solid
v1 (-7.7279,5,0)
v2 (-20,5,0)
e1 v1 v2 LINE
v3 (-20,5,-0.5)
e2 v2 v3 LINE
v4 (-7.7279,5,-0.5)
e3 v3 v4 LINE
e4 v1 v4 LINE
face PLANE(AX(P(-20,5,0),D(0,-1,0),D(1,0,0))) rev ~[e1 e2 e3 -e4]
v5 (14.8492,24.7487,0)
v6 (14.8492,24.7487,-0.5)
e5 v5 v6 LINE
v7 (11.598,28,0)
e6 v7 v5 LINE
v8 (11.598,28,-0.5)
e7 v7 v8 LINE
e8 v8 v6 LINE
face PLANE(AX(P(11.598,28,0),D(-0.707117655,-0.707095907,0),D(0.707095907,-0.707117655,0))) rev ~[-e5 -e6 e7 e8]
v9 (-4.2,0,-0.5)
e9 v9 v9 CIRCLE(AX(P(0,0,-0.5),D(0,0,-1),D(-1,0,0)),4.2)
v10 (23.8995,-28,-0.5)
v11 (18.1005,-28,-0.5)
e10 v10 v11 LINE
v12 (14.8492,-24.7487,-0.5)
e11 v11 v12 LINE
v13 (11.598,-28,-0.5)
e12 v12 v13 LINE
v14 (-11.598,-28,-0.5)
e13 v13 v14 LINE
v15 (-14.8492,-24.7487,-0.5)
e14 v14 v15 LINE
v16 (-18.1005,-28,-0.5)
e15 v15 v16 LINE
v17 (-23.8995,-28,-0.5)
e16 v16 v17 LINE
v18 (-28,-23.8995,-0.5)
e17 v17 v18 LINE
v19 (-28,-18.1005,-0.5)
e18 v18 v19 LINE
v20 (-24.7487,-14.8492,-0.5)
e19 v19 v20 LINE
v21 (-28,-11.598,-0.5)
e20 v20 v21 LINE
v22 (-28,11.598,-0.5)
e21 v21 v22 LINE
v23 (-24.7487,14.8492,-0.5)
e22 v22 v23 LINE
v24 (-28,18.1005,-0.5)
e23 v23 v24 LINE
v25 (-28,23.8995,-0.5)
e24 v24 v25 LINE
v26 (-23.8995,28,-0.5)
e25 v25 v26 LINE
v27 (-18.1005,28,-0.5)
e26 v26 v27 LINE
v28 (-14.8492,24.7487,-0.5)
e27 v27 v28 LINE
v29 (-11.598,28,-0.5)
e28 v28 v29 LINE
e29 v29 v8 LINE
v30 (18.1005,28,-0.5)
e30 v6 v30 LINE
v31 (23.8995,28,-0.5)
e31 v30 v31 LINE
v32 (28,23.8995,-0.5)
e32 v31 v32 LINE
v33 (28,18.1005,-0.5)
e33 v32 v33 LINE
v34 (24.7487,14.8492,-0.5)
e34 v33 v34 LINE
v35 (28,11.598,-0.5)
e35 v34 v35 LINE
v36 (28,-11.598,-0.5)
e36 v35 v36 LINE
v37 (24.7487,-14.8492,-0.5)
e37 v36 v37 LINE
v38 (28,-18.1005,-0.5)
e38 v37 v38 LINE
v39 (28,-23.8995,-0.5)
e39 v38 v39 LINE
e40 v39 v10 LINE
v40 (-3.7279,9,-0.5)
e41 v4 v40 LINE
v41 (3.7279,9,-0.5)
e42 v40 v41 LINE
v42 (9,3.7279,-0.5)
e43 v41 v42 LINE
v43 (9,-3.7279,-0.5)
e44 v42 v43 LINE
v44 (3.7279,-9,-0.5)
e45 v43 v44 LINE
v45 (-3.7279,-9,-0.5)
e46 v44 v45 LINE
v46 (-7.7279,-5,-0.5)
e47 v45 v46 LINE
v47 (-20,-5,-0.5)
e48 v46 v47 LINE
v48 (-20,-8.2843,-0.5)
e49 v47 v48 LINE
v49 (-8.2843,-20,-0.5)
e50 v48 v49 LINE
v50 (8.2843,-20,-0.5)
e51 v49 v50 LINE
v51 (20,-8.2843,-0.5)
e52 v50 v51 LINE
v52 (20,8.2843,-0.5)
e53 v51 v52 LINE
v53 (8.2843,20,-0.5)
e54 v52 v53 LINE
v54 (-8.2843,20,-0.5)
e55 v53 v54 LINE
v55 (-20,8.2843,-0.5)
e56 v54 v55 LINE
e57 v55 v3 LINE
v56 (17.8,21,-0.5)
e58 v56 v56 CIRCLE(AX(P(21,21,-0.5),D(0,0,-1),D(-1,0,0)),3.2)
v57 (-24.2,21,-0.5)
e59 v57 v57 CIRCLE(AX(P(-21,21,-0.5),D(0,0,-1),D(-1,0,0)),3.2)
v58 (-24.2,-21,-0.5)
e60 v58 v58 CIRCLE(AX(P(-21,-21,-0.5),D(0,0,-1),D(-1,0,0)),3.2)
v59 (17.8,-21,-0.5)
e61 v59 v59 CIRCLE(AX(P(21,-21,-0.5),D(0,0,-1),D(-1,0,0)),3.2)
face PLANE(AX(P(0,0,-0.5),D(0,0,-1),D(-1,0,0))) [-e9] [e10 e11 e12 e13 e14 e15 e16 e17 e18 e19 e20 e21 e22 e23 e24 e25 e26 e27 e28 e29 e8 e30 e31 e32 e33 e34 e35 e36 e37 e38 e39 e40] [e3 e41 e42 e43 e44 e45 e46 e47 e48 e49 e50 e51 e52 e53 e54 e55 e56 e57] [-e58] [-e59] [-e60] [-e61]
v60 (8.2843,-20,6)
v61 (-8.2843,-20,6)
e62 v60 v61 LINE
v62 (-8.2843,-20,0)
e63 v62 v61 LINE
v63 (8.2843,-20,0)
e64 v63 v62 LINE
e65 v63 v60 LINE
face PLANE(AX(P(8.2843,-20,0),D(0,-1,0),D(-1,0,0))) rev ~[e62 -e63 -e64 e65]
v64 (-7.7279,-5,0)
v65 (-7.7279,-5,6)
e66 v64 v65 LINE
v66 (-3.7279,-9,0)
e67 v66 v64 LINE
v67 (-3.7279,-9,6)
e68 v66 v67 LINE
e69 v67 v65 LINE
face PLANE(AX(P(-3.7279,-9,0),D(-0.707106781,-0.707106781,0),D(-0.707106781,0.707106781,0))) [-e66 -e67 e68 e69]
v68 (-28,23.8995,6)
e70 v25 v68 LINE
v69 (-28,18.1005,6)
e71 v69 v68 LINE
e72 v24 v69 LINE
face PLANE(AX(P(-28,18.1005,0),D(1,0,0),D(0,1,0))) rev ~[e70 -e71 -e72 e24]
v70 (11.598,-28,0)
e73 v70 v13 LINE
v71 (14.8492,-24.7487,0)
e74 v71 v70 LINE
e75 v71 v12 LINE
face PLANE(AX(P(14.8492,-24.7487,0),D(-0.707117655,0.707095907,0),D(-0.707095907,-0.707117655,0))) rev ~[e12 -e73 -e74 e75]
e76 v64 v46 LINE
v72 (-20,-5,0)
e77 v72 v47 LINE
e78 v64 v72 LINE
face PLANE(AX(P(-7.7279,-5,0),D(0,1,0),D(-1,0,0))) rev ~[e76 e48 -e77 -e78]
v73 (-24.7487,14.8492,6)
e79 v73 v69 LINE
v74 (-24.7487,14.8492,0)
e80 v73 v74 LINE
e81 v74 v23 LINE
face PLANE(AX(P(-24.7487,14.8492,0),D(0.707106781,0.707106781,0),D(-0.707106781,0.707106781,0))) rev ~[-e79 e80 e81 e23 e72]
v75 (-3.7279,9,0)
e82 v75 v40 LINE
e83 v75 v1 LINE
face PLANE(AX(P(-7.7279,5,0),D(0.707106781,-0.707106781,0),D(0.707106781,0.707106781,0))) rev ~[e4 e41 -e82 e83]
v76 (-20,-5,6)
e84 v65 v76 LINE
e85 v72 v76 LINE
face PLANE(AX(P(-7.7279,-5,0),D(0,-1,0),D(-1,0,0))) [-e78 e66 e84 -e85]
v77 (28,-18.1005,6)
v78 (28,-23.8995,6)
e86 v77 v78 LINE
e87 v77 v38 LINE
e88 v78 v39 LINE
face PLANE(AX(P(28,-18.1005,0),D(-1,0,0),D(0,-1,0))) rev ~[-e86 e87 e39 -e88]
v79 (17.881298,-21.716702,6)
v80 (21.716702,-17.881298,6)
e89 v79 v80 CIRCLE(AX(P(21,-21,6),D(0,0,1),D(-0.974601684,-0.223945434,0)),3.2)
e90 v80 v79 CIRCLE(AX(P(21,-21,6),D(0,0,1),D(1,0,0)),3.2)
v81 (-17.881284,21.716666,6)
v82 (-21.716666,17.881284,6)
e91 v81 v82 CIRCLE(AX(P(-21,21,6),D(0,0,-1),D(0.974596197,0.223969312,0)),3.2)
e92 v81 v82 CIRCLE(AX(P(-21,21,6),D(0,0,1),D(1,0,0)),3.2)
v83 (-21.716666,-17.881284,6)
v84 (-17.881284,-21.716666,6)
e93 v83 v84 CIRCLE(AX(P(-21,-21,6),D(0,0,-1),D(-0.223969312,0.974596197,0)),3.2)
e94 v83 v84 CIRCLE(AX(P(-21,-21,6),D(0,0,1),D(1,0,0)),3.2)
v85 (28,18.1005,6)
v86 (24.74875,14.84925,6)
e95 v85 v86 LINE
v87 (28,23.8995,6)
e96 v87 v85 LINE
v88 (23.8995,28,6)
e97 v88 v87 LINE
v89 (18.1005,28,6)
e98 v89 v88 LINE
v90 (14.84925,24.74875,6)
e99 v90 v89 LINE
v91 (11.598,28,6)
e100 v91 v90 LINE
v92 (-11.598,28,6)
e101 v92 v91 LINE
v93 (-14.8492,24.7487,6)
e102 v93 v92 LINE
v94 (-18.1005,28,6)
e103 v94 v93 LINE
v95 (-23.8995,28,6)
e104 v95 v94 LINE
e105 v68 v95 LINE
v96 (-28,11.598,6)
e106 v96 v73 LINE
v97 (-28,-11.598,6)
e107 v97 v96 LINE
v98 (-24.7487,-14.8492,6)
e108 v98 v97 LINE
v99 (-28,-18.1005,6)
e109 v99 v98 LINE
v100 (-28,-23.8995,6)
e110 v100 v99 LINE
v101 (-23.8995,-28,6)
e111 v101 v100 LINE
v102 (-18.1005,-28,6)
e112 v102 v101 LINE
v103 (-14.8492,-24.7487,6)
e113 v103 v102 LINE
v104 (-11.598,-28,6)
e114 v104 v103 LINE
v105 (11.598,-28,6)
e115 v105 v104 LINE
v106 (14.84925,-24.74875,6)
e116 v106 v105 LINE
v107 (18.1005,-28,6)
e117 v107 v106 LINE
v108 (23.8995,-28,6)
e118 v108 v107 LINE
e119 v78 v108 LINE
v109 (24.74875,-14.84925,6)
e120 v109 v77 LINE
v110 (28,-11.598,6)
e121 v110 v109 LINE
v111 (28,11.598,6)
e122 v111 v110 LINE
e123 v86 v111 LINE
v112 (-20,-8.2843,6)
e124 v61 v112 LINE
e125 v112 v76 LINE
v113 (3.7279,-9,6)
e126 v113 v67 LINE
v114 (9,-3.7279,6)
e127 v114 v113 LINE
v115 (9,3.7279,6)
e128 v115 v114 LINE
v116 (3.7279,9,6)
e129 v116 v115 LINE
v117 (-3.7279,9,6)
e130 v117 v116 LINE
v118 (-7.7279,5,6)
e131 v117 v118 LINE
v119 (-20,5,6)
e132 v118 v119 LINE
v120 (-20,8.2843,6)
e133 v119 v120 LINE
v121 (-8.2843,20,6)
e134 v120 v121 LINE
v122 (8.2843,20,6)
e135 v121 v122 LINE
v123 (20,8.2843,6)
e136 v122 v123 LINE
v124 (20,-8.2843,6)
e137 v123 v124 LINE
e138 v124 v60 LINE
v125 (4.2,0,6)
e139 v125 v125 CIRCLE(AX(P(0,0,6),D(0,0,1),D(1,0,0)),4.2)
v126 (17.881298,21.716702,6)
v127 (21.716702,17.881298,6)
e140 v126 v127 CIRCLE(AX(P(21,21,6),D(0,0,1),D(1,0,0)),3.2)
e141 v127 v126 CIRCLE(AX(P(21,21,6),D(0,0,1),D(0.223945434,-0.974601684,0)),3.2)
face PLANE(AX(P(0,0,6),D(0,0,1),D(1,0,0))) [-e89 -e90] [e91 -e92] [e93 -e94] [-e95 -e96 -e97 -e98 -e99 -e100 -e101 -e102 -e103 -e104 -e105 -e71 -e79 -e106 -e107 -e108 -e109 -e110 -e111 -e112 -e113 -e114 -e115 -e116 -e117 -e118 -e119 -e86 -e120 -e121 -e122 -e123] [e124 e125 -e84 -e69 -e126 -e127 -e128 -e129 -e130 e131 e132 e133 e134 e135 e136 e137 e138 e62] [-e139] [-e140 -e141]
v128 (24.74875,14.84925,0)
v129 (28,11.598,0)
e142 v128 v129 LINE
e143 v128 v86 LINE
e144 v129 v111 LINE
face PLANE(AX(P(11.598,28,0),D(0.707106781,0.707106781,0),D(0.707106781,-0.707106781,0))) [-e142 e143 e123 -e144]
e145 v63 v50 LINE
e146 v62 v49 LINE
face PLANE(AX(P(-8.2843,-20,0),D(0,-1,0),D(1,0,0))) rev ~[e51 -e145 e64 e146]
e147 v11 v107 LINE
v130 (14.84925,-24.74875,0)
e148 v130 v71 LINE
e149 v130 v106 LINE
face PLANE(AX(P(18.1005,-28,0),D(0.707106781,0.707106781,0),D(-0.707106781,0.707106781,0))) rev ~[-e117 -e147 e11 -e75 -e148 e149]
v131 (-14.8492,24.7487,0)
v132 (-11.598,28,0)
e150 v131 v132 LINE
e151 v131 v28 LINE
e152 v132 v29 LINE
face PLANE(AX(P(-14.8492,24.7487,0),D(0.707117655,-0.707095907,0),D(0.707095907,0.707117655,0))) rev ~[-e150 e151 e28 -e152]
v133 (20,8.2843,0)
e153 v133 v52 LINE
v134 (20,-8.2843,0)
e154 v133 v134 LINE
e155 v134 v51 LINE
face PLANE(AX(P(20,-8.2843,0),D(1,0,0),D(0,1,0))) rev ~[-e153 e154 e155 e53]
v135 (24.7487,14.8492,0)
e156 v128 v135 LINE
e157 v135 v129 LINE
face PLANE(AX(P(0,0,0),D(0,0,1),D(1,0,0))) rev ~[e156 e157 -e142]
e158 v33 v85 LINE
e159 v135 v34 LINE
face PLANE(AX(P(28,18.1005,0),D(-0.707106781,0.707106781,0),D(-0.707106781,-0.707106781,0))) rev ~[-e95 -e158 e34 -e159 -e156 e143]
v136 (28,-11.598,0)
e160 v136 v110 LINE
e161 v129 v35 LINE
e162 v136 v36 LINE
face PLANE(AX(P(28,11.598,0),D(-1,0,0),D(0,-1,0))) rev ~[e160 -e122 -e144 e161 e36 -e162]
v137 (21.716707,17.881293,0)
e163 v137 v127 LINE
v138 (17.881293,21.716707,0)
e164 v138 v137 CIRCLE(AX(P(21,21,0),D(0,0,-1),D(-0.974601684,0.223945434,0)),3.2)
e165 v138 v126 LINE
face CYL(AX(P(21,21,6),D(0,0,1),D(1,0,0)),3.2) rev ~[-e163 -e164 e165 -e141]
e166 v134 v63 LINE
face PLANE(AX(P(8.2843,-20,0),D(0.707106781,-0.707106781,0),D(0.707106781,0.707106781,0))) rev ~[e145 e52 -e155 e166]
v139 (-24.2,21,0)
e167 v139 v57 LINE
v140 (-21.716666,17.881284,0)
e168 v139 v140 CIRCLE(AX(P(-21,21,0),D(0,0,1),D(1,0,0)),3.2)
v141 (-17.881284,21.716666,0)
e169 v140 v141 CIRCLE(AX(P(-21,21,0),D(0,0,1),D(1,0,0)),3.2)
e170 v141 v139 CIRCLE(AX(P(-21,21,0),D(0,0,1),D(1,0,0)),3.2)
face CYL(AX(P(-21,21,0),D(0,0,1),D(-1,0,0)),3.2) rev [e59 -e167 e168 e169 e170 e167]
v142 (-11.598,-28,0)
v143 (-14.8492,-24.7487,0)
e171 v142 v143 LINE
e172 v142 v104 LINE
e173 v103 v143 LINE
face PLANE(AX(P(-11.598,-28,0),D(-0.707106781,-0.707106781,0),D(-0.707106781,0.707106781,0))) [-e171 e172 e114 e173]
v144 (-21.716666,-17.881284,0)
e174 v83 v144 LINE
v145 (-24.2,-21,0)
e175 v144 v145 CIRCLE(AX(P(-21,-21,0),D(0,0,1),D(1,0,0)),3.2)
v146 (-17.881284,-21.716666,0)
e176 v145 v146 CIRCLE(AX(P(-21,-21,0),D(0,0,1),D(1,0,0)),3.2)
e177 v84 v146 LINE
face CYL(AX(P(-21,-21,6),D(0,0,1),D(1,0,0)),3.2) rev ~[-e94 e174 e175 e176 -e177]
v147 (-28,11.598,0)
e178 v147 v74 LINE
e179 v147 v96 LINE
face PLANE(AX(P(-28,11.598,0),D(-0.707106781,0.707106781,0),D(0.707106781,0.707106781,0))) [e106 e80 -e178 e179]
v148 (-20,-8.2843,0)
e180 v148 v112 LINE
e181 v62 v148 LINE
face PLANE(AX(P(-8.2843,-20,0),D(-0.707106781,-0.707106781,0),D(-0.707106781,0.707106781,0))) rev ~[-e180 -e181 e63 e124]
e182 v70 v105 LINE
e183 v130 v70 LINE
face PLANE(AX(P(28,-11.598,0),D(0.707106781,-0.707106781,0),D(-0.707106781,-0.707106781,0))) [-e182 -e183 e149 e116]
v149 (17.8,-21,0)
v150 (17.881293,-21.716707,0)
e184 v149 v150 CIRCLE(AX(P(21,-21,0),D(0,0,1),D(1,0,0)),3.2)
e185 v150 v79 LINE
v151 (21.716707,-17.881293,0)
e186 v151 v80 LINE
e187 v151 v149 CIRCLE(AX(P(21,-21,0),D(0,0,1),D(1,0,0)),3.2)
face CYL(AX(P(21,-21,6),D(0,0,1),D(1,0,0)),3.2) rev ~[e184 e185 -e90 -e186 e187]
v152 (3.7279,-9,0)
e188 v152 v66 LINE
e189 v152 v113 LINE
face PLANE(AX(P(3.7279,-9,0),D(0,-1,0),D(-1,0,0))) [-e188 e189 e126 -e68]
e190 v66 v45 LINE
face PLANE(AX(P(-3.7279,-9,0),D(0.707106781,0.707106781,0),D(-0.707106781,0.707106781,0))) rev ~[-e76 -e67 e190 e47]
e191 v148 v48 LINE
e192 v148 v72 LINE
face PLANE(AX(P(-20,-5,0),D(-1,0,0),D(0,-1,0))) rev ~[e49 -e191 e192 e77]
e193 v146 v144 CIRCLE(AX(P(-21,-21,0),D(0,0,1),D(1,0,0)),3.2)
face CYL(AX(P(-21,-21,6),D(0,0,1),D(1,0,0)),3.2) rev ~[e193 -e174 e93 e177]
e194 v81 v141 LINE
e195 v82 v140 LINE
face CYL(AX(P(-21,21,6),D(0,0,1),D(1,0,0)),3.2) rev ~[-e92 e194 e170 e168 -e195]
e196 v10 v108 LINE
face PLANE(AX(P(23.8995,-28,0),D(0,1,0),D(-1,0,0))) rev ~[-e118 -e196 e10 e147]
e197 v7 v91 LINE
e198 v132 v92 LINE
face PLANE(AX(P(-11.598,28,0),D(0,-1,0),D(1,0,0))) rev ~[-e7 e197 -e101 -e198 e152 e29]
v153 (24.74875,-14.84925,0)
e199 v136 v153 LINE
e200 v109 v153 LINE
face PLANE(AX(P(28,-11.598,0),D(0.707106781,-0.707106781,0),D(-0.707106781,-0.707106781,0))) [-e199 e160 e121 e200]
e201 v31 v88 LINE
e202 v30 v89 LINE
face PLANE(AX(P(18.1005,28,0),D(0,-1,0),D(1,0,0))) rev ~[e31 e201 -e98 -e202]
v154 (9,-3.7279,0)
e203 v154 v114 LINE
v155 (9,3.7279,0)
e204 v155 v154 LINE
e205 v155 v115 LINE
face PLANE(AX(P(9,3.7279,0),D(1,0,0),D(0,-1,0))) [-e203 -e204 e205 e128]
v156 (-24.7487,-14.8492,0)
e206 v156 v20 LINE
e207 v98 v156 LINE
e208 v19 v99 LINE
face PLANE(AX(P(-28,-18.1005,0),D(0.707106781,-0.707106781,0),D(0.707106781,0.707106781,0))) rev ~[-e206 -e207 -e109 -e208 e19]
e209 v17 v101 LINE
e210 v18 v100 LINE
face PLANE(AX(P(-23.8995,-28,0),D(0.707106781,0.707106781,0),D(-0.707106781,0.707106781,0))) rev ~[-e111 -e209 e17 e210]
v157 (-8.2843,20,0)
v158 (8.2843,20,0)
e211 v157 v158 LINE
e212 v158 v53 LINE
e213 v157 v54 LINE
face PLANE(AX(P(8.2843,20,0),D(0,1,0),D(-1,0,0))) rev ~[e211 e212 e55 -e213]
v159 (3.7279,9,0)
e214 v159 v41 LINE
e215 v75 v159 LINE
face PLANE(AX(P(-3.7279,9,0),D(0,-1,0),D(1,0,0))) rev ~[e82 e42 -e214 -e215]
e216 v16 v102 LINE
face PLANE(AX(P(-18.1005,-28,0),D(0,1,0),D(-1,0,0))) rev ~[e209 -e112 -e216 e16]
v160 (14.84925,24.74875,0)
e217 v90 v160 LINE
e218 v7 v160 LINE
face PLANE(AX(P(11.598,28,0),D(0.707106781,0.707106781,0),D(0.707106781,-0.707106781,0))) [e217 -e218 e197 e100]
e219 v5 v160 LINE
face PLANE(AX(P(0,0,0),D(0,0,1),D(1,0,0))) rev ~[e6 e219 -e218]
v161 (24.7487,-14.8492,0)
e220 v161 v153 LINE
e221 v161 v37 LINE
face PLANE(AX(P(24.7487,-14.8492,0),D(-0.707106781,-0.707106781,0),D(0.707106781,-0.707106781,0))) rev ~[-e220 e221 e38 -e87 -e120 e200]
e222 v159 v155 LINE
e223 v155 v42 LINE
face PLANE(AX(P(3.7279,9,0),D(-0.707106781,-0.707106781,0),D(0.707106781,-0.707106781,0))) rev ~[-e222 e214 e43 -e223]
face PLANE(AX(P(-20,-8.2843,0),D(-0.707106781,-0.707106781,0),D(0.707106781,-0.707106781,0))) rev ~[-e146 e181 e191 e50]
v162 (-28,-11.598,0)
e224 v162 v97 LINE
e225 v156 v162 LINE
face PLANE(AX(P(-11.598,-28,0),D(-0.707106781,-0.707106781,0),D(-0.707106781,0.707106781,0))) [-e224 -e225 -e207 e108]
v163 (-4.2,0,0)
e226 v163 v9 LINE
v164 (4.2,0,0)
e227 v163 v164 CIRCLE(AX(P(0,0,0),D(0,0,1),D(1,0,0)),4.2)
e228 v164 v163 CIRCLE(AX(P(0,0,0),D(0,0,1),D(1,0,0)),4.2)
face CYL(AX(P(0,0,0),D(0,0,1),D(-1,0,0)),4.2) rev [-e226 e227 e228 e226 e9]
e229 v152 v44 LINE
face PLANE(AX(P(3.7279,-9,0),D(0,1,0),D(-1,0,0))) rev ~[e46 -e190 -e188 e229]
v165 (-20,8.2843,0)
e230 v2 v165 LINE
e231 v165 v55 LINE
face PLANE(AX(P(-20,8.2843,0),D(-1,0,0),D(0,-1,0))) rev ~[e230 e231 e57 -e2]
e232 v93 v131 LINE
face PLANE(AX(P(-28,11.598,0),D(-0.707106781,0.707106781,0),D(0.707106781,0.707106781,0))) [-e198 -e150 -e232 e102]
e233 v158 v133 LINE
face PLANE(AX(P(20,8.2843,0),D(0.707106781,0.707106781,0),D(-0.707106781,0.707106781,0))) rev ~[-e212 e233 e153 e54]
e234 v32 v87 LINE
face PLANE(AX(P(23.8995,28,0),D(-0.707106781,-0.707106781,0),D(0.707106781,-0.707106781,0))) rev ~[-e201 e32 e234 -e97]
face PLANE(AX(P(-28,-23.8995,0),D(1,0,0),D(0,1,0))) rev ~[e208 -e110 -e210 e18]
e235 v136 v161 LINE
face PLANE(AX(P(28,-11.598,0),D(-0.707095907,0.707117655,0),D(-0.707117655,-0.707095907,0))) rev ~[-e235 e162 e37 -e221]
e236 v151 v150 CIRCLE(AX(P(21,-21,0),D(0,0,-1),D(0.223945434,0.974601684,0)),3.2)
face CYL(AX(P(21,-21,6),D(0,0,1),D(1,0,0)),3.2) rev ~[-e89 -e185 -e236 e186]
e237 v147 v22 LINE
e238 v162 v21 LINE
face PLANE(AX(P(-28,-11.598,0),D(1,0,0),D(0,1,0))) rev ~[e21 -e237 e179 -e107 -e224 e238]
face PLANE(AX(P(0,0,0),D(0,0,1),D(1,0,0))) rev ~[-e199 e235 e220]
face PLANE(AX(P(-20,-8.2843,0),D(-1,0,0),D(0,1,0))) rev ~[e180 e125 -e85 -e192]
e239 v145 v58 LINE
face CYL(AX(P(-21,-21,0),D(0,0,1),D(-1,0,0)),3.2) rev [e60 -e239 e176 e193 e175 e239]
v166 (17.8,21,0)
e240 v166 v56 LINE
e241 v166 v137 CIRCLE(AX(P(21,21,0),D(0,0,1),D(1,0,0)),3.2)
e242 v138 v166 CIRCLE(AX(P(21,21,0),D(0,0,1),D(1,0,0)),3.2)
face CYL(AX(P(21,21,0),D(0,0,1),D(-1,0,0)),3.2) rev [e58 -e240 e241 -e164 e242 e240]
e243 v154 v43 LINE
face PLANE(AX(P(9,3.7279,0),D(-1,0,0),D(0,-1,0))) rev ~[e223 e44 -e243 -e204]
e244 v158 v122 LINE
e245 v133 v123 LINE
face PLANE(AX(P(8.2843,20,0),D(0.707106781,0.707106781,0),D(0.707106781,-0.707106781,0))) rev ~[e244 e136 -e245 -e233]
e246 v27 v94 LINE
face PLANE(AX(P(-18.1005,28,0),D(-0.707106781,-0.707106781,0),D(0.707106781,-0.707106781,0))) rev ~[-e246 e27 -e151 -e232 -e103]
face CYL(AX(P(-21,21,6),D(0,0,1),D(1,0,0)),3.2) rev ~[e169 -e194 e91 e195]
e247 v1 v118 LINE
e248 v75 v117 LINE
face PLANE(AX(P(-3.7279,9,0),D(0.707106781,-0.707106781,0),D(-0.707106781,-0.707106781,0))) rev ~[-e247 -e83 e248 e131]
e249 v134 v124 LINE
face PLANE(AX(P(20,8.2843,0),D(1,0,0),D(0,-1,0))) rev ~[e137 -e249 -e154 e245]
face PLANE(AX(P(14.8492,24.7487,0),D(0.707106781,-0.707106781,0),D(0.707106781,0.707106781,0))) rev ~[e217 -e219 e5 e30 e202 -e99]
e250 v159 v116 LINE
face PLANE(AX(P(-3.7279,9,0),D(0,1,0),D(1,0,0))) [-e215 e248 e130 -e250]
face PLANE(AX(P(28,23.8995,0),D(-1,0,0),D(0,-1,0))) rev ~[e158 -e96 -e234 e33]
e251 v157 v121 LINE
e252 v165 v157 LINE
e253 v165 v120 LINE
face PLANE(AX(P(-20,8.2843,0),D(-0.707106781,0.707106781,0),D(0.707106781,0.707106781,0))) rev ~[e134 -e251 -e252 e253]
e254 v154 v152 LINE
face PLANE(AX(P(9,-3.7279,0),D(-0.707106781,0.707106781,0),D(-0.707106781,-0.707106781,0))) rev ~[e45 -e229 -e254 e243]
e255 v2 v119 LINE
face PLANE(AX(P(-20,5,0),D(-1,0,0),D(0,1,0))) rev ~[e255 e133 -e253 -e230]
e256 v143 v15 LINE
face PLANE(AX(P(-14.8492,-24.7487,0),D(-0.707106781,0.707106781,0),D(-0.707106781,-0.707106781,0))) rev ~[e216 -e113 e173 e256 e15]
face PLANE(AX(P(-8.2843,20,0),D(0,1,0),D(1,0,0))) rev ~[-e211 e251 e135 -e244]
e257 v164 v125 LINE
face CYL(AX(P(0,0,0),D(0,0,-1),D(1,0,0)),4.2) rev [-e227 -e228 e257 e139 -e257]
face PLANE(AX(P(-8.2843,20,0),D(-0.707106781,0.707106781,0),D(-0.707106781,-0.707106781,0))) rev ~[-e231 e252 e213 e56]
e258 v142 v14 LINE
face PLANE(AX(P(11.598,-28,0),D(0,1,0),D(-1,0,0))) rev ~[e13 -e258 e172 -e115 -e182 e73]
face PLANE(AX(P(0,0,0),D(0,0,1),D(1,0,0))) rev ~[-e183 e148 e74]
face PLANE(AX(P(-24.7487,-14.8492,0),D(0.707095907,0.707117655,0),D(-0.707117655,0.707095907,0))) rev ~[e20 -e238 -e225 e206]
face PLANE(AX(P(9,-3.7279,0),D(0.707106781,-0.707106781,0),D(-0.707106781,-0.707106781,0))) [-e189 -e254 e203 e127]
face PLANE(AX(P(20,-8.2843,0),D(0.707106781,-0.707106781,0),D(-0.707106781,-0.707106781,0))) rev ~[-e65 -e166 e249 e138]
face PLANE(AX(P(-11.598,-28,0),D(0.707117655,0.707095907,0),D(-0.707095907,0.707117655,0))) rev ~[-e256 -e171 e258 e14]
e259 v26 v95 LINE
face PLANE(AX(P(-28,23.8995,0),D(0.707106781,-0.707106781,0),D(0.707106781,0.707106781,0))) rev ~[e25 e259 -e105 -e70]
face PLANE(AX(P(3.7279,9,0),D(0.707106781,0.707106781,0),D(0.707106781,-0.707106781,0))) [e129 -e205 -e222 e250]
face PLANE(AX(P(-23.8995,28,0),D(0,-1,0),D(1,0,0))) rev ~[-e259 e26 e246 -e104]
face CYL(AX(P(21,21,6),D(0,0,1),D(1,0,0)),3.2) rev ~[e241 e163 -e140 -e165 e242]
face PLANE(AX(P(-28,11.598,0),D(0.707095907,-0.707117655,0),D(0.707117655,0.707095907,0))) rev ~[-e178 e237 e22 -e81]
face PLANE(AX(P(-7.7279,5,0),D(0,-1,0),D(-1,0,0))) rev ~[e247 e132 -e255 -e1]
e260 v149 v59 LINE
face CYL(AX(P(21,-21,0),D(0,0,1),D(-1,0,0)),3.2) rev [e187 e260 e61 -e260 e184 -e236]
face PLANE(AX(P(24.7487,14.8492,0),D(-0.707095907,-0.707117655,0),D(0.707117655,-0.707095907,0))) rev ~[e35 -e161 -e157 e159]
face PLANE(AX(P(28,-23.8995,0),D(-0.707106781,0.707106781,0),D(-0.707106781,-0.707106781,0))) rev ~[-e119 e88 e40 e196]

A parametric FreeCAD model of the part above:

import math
import FreeCAD as App
import Part
import Sketcher
from FreeCAD import Vector

doc = App.newDocument("Part")
body = doc.addObject("PartDesign::Body", "Body")

# Sketch on XY plane
sketch1 = doc.addObject("Sketcher::SketchObject", "Sketch")
body.addObject(sketch1)
sketch1.AttachmentSupport = (doc.XY_Plane, [""])
sketch1.MapMode = "FlatFace"
sketch1.addGeometry([
    Part.LineSegment(Vector(11.6, -28, 0), Vector(28, -11.6, 0)),  # 0
    Part.LineSegment(Vector(28, -11.6, 0), Vector(28, 11.6, 0)),  # 1
    Part.LineSegment(Vector(28, 11.6, 0), Vector(11.6, 28, 0)),  # 2
    Part.LineSegment(Vector(11.6, 28, 0), Vector(-11.6, 28, 0)),  # 3
    Part.LineSegment(Vector(-11.6, 28, 0), Vector(-28, 11.6, 0)),  # 4
    Part.LineSegment(Vector(-28, 11.6, 0), Vector(-28, -11.6, 0)),  # 5
    Part.LineSegment(Vector(-28, -11.6, 0), Vector(-11.6, -28, 0)),  # 6
    Part.LineSegment(Vector(-11.6, -28, 0), Vector(11.6, -28, 0)),  # 7
    Part.LineSegment(Vector(20, 8.3, 0), Vector(20, -8.3, 0)),  # 8
    Part.LineSegment(Vector(20, -8.3, 0), Vector(8.3, -20, 0)),  # 9
    Part.LineSegment(Vector(8.3, -20, 0), Vector(-8.3, -20, 0)),  # 10
    Part.LineSegment(Vector(-8.3, -20, 0), Vector(-20, -8.3, 0)),  # 11
    Part.LineSegment(Vector(-20, -8.3, 0), Vector(-20, -5, 0)),  # 12
    Part.LineSegment(Vector(-20, -5, 0), Vector(-7.7, -5, 0)),  # 13
    Part.LineSegment(Vector(-7.7, -5, 0), Vector(-3.7, -9, 0)),  # 14
    Part.LineSegment(Vector(-3.7, -9, 0), Vector(3.7, -9, 0)),  # 15
    Part.LineSegment(Vector(3.7, -9, 0), Vector(9, -3.7, 0)),  # 16
    Part.LineSegment(Vector(9, -3.7, 0), Vector(9, 3.7, 0)),  # 17
    Part.LineSegment(Vector(9, 3.7, 0), Vector(3.7, 9, 0)),  # 18
    Part.LineSegment(Vector(3.7, 9, 0), Vector(-3.7, 9, 0)),  # 19
    Part.LineSegment(Vector(-3.7, 9, 0), Vector(-7.7, 5, 0)),  # 20
    Part.LineSegment(Vector(-7.7, 5, 0), Vector(-20, 5, 0)),  # 21
    Part.LineSegment(Vector(-20, 5, 0), Vector(-20, 8.3, 0)),  # 22
    Part.LineSegment(Vector(-20, 8.3, 0), Vector(-8.3, 20, 0)),  # 23
    Part.LineSegment(Vector(-8.3, 20, 0), Vector(8.3, 20, 0)),  # 24
    Part.LineSegment(Vector(8.3, 20, 0), Vector(20, 8.3, 0)),  # 25
    Part.Circle(Vector(0, 0, 0), Vector(0, 0, 1), 4.2),  # 26
], False)
sketch1.addConstraint([
    Sketcher.Constraint("Coincident", 0, 2, 1, 1),
    Sketcher.Constraint("Coincident", 1, 2, 2, 1),
    Sketcher.Constraint("Coincident", 2, 2, 3, 1),
    Sketcher.Constraint("Coincident", 3, 2, 4, 1),
    Sketcher.Constraint("Coincident", 4, 2, 5, 1),
    Sketcher.Constraint("Coincident", 5, 2, 6, 1),
    Sketcher.Constraint("Coincident", 6, 2, 7, 1),
    Sketcher.Constraint("Coincident", 7, 2, 0, 1),
    Sketcher.Constraint("Coincident", 8, 2, 9, 1),
    Sketcher.Constraint("Coincident", 9, 2, 10, 1),
    Sketcher.Constraint("Coincident", 10, 2, 11, 1),
    Sketcher.Constraint("Coincident", 11, 2, 12, 1),
    Sketcher.Constraint("Coincident", 12, 2, 13, 1),
    Sketcher.Constraint("Coincident", 13, 2, 14, 1),
    Sketcher.Constraint("Coincident", 14, 2, 15, 1),
    Sketcher.Constraint("Coincident", 15, 2, 16, 1),
    Sketcher.Constraint("Coincident", 16, 2, 17, 1),
    Sketcher.Constraint("Coincident", 17, 2, 18, 1),
    Sketcher.Constraint("Coincident", 18, 2, 19, 1),
    Sketcher.Constraint("Coincident", 19, 2, 20, 1),
    Sketcher.Constraint("Coincident", 20, 2, 21, 1),
    Sketcher.Constraint("Coincident", 21, 2, 22, 1),
    Sketcher.Constraint("Coincident", 22, 2, 23, 1),
    Sketcher.Constraint("Coincident", 23, 2, 24, 1),
    Sketcher.Constraint("Coincident", 24, 2, 25, 1),
    Sketcher.Constraint("Coincident", 25, 2, 8, 1),
    Sketcher.Constraint("Vertical", 1),
    Sketcher.Constraint("Horizontal", 3),
    Sketcher.Constraint("Vertical", 5),
    Sketcher.Constraint("Horizontal", 7),
    Sketcher.Constraint("Vertical", 8),
    Sketcher.Constraint("Horizontal", 10),
    Sketcher.Constraint("Vertical", 12),
    Sketcher.Constraint("Horizontal", 13),
    Sketcher.Constraint("Horizontal", 15),
    Sketcher.Constraint("Vertical", 17),
    Sketcher.Constraint("Horizontal", 19),
    Sketcher.Constraint("Horizontal", 21),
    Sketcher.Constraint("Vertical", 22),
    Sketcher.Constraint("Horizontal", 24),
    Sketcher.Constraint("Coincident", 26, 3, -1, 1),
    Sketcher.Constraint("Symmetric", 0, 2, 4, 2, -1, 1),
    Sketcher.Constraint("Symmetric", 2, 2, 6, 2, -1, 1),
    Sketcher.Constraint("Symmetric", 14, 2, 18, 2, -1, 1),
    Sketcher.Constraint("Symmetric", 8, 2, 22, 2, -1, 1),
    Sketcher.Constraint("Symmetric", 9, 2, 23, 2, -1, 1),
    Sketcher.Constraint("Symmetric", 11, 2, 25, 2, -1, 1),
    Sketcher.Constraint("Symmetric", 13, 2, 20, 2, -1),
    Sketcher.Constraint("Perpendicular", 0, 2),
    Sketcher.Constraint("Perpendicular", 2, 4),
    Sketcher.Constraint("Perpendicular", 4, 6),
    Sketcher.Constraint("Perpendicular", 6, 9),
    Sketcher.Constraint("Perpendicular", 9, 11),
    Sketcher.Constraint("Parallel", 11, 14),
    Sketcher.Constraint("Perpendicular", 14, 16),
    Sketcher.Constraint("Perpendicular", 16, 18),
    Sketcher.Constraint("Perpendicular", 18, 20),
    Sketcher.Constraint("Perpendicular", 23, 25),
    Sketcher.Constraint("Horizontal", 1, 2, 4, 2),
    Sketcher.Constraint("Horizontal", 8, 2, 11, 2),
    Sketcher.Constraint("Vertical", 3, 2, 6, 2),
    Sketcher.Constraint("Vertical", 15, 2, 18, 2),
    Sketcher.Constraint("Equal", 7, 1),
    Sketcher.Constraint("Equal", 24, 8),
    Sketcher.Constraint("Equal", 19, 17),
    Sketcher.Constraint("Diameter", 26, 8.4),
    Sketcher.Constraint("DistanceX", 8, 2, 0, 2, 8.0),
    Sketcher.Constraint("DistanceY", 15, 2, 18, 2, 18.0),
    Sketcher.Constraint("DistanceY", 13, 2, 20, 2, 10.0),
    Sketcher.Constraint("DistanceX", -1, 1, 0, 2, 28.0),
    Sketcher.Constraint("DistanceX", 3, 2, 3, 1, 23.196),
    Sketcher.Constraint("DistanceX", 13, 1, 13, 2, 12.272),
    Sketcher.Constraint("DistanceX", 10, 2, 10, 1, 16.5686),
])
pad1 = doc.addObject("PartDesign::Pad", "Pad")
body.addObject(pad1)
pad1.Profile = sketch1
pad1.Length = 6

# Sketch on XY plane
sketch2 = doc.addObject("Sketcher::SketchObject", "Sketch001")
body.addObject(sketch2)
sketch2.AttachmentSupport = (doc.XY_Plane, [""])
sketch2.MapMode = "FlatFace"
sketch2.AttachmentOffset = App.Placement(Vector(0, 0, 6), App.Rotation())
sketch2.addGeometry([
    Part.LineSegment(Vector(-21.7, -17.9, 0), Vector(-24.7, -14.8, 0)),  # 0
    Part.LineSegment(Vector(-24.7, -14.8, 0), Vector(-28, -18.1, 0)),  # 1
    Part.LineSegment(Vector(-28, -18.1, 0), Vector(-28, -23.9, 0)),  # 2
    Part.LineSegment(Vector(-28, -23.9, 0), Vector(-23.9, -28, 0)),  # 3
    Part.LineSegment(Vector(-23.9, -28, 0), Vector(-18.1, -28, 0)),  # 4
    Part.LineSegment(Vector(-18.1, -28, 0), Vector(-14.8, -24.7, 0)),  # 5
    Part.LineSegment(Vector(-14.8, -24.7, 0), Vector(-17.9, -21.7, 0)),  # 6
    Part.ArcOfCircle(Part.Circle(Vector(-21, -21, 0), Vector(0, 0, 1), 3.2), math.radians(103), math.radians(347)),  # 7
    Part.LineSegment(Vector(-28, 18.1, 0), Vector(-24.7, 14.8, 0)),  # 8
    Part.LineSegment(Vector(-24.7, 14.8, 0), Vector(-21.7, 17.9, 0)),  # 9
    Part.ArcOfCircle(Part.Circle(Vector(-21, 21, 0), Vector(0, 0, 1), 3.2), math.radians(13), math.radians(257)),  # 10
    Part.LineSegment(Vector(-17.9, 21.7, 0), Vector(-14.8, 24.7, 0)),  # 11
    Part.LineSegment(Vector(-14.8, 24.7, 0), Vector(-18.1, 28, 0)),  # 12
    Part.LineSegment(Vector(-18.1, 28, 0), Vector(-23.9, 28, 0)),  # 13
    Part.LineSegment(Vector(-23.9, 28, 0), Vector(-28, 23.9, 0)),  # 14
    Part.LineSegment(Vector(-28, 23.9, 0), Vector(-28, 18.1, 0)),  # 15
    Part.LineSegment(Vector(28, -18.1, 0), Vector(24.7, -14.8, 0)),  # 16
    Part.LineSegment(Vector(24.7, -14.8, 0), Vector(21.7, -17.9, 0)),  # 17
    Part.ArcOfCircle(Part.Circle(Vector(21, -21, 0), Vector(0, 0, 1), 3.2), math.radians(-167), math.radians(77)),  # 18
    Part.LineSegment(Vector(17.9, -21.7, 0), Vector(14.8, -24.7, 0)),  # 19
    Part.LineSegment(Vector(14.8, -24.7, 0), Vector(18.1, -28, 0)),  # 20
    Part.LineSegment(Vector(18.1, -28, 0), Vector(23.9, -28, 0)),  # 21
    Part.LineSegment(Vector(23.9, -28, 0), Vector(28, -23.9, 0)),  # 22
    Part.LineSegment(Vector(28, -23.9, 0), Vector(28, -18.1, 0)),  # 23
    Part.LineSegment(Vector(18.1, 28, 0), Vector(14.8, 24.7, 0)),  # 24
    Part.LineSegment(Vector(14.8, 24.7, 0), Vector(17.9, 21.7, 0)),  # 25
    Part.ArcOfCircle(Part.Circle(Vector(21, 21, 0), Vector(0, 0, 1), 3.2), math.radians(-77), math.radians(167)),  # 26
    Part.LineSegment(Vector(21.7, 17.9, 0), Vector(24.7, 14.8, 0)),  # 27
    Part.LineSegment(Vector(24.7, 14.8, 0), Vector(28, 18.1, 0)),  # 28
    Part.LineSegment(Vector(28, 18.1, 0), Vector(28, 23.9, 0)),  # 29
    Part.LineSegment(Vector(28, 23.9, 0), Vector(23.9, 28, 0)),  # 30
    Part.LineSegment(Vector(23.9, 28, 0), Vector(18.1, 28, 0)),  # 31
], False)
sketch2.addConstraint([
    Sketcher.Constraint("Coincident", 0, 2, 1, 1),
    Sketcher.Constraint("Coincident", 1, 2, 2, 1),
    Sketcher.Constraint("Coincident", 2, 2, 3, 1),
    Sketcher.Constraint("Coincident", 3, 2, 4, 1),
    Sketcher.Constraint("Coincident", 4, 2, 5, 1),
    Sketcher.Constraint("Coincident", 5, 2, 6, 1),
    Sketcher.Constraint("Coincident", 6, 2, 7, 2),
    Sketcher.Constraint("Coincident", 7, 1, 0, 1),
    Sketcher.Constraint("Coincident", 8, 2, 9, 1),
    Sketcher.Constraint("Coincident", 9, 2, 10, 2),
    Sketcher.Constraint("Coincident", 10, 1, 11, 1),
    Sketcher.Constraint("Coincident", 11, 2, 12, 1),
    Sketcher.Constraint("Coincident", 12, 2, 13, 1),
    Sketcher.Constraint("Coincident", 13, 2, 14, 1),
    Sketcher.Constraint("Coincident", 14, 2, 15, 1),
    Sketcher.Constraint("Coincident", 15, 2, 8, 1),
    Sketcher.Constraint("Coincident", 16, 2, 17, 1),
    Sketcher.Constraint("Coincident", 17, 2, 18, 2),
    Sketcher.Constraint("Coincident", 18, 1, 19, 1),
    Sketcher.Constraint("Coincident", 19, 2, 20, 1),
    Sketcher.Constraint("Coincident", 20, 2, 21, 1),
    Sketcher.Constraint("Coincident", 21, 2, 22, 1),
    Sketcher.Constraint("Coincident", 22, 2, 23, 1),
    Sketcher.Constraint("Coincident", 23, 2, 16, 1),
    Sketcher.Constraint("Coincident", 24, 2, 25, 1),
    Sketcher.Constraint("Coincident", 25, 2, 26, 2),
    Sketcher.Constraint("Coincident", 26, 1, 27, 1),
    Sketcher.Constraint("Coincident", 27, 2, 28, 1),
    Sketcher.Constraint("Coincident", 28, 2, 29, 1),
    Sketcher.Constraint("Coincident", 29, 2, 30, 1),
    Sketcher.Constraint("Coincident", 30, 2, 31, 1),
    Sketcher.Constraint("Coincident", 31, 2, 24, 1),
    Sketcher.Constraint("Vertical", 2),
    Sketcher.Constraint("Horizontal", 4),
    Sketcher.Constraint("Horizontal", 13),
    Sketcher.Constraint("Vertical", 15),
    Sketcher.Constraint("Horizontal", 21),
    Sketcher.Constraint("Vertical", 23),
    Sketcher.Constraint("Vertical", 29),
    Sketcher.Constraint("Horizontal", 31),
    Sketcher.Constraint("Equal", 7, 10),
    Sketcher.Constraint("Equal", 10, 18),
    Sketcher.Constraint("Equal", 18, 26),
    Sketcher.Constraint("Symmetric", 10, 3, 18, 3, -1, 1),
    Sketcher.Constraint("Symmetric", 7, 3, 26, 3, -1, 1),
    Sketcher.Constraint("Symmetric", 8, 2, 16, 2, -1, 1),
    Sketcher.Constraint("Symmetric", 11, 2, 19, 2, -1, 1),
    Sketcher.Constraint("Symmetric", 12, 2, 20, 2, -1, 1),
    Sketcher.Constraint("Symmetric", 14, 2, 22, 2, -1, 1),
    Sketcher.Constraint("Symmetric", 5, 2, 24, 2, -1, 1),
    Sketcher.Constraint("Symmetric", 0, 2, 27, 2, -1, 1),
    Sketcher.Constraint("Symmetric", 1, 2, 28, 2, -1, 1),
    Sketcher.Constraint("Symmetric", 3, 2, 30, 2, -1, 1),
    Sketcher.Constraint("Symmetric", 7, 3, 18, 3, -2),
    Sketcher.Constraint("Symmetric", 0, 2, 16, 2, -2),
    Sketcher.Constraint("Symmetric", 5, 2, 19, 2, -2),
    Sketcher.Constraint("Symmetric", 4, 2, 20, 2, -2),
    Sketcher.Constraint("Symmetric", 2, 2, 22, 2, -2),
    Sketcher.Constraint("Perpendicular", 0, 1),
    Sketcher.Constraint("Perpendicular", 1, 3),
    Sketcher.Constraint("Perpendicular", 3, 5),
    Sketcher.Constraint("Perpendicular", 5, 6),
    Sketcher.Constraint("Parallel", 6, 8),
    Sketcher.Constraint("Perpendicular", 8, 9),
    Sketcher.Constraint("Parallel", 9, 11),
    Sketcher.Constraint("Perpendicular", 11, 12),
    Sketcher.Constraint("Perpendicular", 12, 14),
    Sketcher.Constraint("Perpendicular", 14, 16),
    Sketcher.Constraint("Perpendicular", 16, 17),
    Sketcher.Constraint("Parallel", 17, 19),
    Sketcher.Constraint("Perpendicular", 20, 22),
    Sketcher.Constraint("Parallel", 22, 24),
    Sketcher.Constraint("Perpendicular", 24, 25),
    Sketcher.Constraint("Parallel", 25, 27),
    Sketcher.Constraint("Perpendicular", 28, 30),
    Sketcher.Constraint("Equal", 31, 2),
    Sketcher.Constraint("Equal", 1, 5),
    Sketcher.Constraint("Equal", 0, 6),
    Sketcher.Constraint("Radius", 7, 3.2),
    Sketcher.Constraint("DistanceX", 1, 2, 7, 3, 7.0),
    Sketcher.Constraint("DistanceX", 7, 3, -1, 1, 21.0),
    Sketcher.Constraint("DistanceY", 7, 3, -1, 1, 21.0),
    Sketcher.Constraint("DistanceX", 4, 1, 4, 2, 5.799),
    Sketcher.Constraint("DistanceX", 6, 2, 16, 2, 42.63),
    Sketcher.Constraint("Distance", 0, 4.288),
])
pad2 = doc.addObject("PartDesign::Pad", "Pad001")
body.addObject(pad2)
pad2.Profile = sketch2
pad2.Length = 6
pad2.Reversed = True

# Sketch on XY plane
sketch3 = doc.addObject("Sketcher::SketchObject", "Sketch002")
body.addObject(sketch3)
sketch3.AttachmentSupport = (doc.XY_Plane, [""])
sketch3.MapMode = "FlatFace"
sketch3.AttachmentOffset = App.Placement(Vector(0, 0, 6), App.Rotation())
sketch3.addGeometry([
    Part.ArcOfCircle(Part.Circle(Vector(-21, 21, 0), Vector(0, 0, 1), 3.2), math.radians(-103), math.radians(13)),  # 0
    Part.LineSegment(Vector(-21.7, 17.9, 0), Vector(-17.9, 21.7, 0)),  # 1
    Part.ArcOfCircle(Part.Circle(Vector(-21, -21, 0), Vector(0, 0, 1), 3.2), math.radians(-13), math.radians(103)),  # 2
    Part.LineSegment(Vector(-17.9, -21.7, 0), Vector(-21.7, -17.9, 0)),  # 3
    Part.ArcOfCircle(Part.Circle(Vector(21, -21, 0), Vector(0, 0, 1), 3.2), math.radians(77), math.radians(193)),  # 4
    Part.LineSegment(Vector(21.7, -17.9, 0), Vector(17.9, -21.7, 0)),  # 5
    Part.ArcOfCircle(Part.Circle(Vector(21, 21, 0), Vector(0, 0, 1), 3.2), math.radians(167), math.radians(283)),  # 6
    Part.LineSegment(Vector(17.9, 21.7, 0), Vector(21.7, 17.9, 0)),  # 7
], False)
sketch3.addConstraint([
    Sketcher.Constraint("Coincident", 0, 1, 1, 1),
    Sketcher.Constraint("Coincident", 1, 2, 0, 2),
    Sketcher.Constraint("Coincident", 2, 1, 3, 1),
    Sketcher.Constraint("Coincident", 3, 2, 2, 2),
    Sketcher.Constraint("Coincident", 4, 1, 5, 1),
    Sketcher.Constraint("Coincident", 5, 2, 4, 2),
    Sketcher.Constraint("Coincident", 6, 1, 7, 1),
    Sketcher.Constraint("Coincident", 7, 2, 6, 2),
    Sketcher.Constraint("Equal", 0, 2),
    Sketcher.Constraint("Equal", 2, 4),
    Sketcher.Constraint("Equal", 4, 6),
    Sketcher.Constraint("Symmetric", 0, 3, 4, 3, -1, 1),
    Sketcher.Constraint("Symmetric", 2, 3, 6, 3, -1, 1),
    Sketcher.Constraint("Symmetric", 2, 3, 4, 3, -2),
    Sketcher.Constraint("Perpendicular", 1, 3),
    Sketcher.Constraint("Perpendicular", 3, 5),
    Sketcher.Constraint("Perpendicular", 5, 7),
    Sketcher.Constraint("Horizontal", 3, 2, 4, 1),
    Sketcher.Constraint("Horizontal", 2, 1, 5, 2),
    Sketcher.Constraint("Horizontal", 1, 2, 6, 1),
    Sketcher.Constraint("Vertical", 1, 2, 2, 1),
    Sketcher.Constraint("Radius", 0, 3.2),
    Sketcher.Constraint("DistanceX", 0, 3, -1, 1, 21.0),
    Sketcher.Constraint("DistanceY", -1, 1, 0, 3, 21.0),
    Sketcher.Constraint("Distance", 1, 5.424),
])
pocket1 = doc.addObject("PartDesign::Pocket", "Pocket")
body.addObject(pocket1)
pocket1.Profile = sketch3
pocket1.Type = "ThroughAll"

# Sketch on XY plane
sketch4 = doc.addObject("Sketcher::SketchObject", "Sketch003")
body.addObject(sketch4)
sketch4.AttachmentSupport = (doc.XY_Plane, [""])
sketch4.MapMode = "FlatFace"
sketch4.addGeometry([
    Part.LineSegment(Vector(28, -11.6, 0), Vector(24.7, -14.8, 0)),  # 0
    Part.LineSegment(Vector(24.7, -14.8, 0), Vector(28, -18.1, 0)),  # 1
    Part.LineSegment(Vector(28, -18.1, 0), Vector(28, -23.9, 0)),  # 2
    Part.LineSegment(Vector(28, -23.9, 0), Vector(23.9, -28, 0)),  # 3
    Part.LineSegment(Vector(23.9, -28, 0), Vector(18.1, -28, 0)),  # 4
    Part.LineSegment(Vector(18.1, -28, 0), Vector(14.8, -24.7, 0)),  # 5
    Part.LineSegment(Vector(14.8, -24.7, 0), Vector(11.6, -28, 0)),  # 6
    Part.LineSegment(Vector(11.6, -28, 0), Vector(-11.6, -28, 0)),  # 7
    Part.LineSegment(Vector(-11.6, -28, 0), Vector(-14.8, -24.7, 0)),  # 8
    Part.LineSegment(Vector(-14.8, -24.7, 0), Vector(-18.1, -28, 0)),  # 9
    Part.LineSegment(Vector(-18.1, -28, 0), Vector(-23.9, -28, 0)),  # 10
    Part.LineSegment(Vector(-23.9, -28, 0), Vector(-28, -23.9, 0)),  # 11
    Part.LineSegment(Vector(-28, -23.9, 0), Vector(-28, -18.1, 0)),  # 12
    Part.LineSegment(Vector(-28, -18.1, 0), Vector(-24.7, -14.8, 0)),  # 13
    Part.LineSegment(Vector(-24.7, -14.8, 0), Vector(-28, -11.6, 0)),  # 14
    Part.LineSegment(Vector(-28, -11.6, 0), Vector(-28, 11.6, 0)),  # 15
    Part.LineSegment(Vector(-28, 11.6, 0), Vector(-24.7, 14.8, 0)),  # 16
    Part.LineSegment(Vector(-24.7, 14.8, 0), Vector(-28, 18.1, 0)),  # 17
    Part.LineSegment(Vector(-28, 18.1, 0), Vector(-28, 23.9, 0)),  # 18
    Part.LineSegment(Vector(-28, 23.9, 0), Vector(-23.9, 28, 0)),  # 19
    Part.LineSegment(Vector(-23.9, 28, 0), Vector(-18.1, 28, 0)),  # 20
    Part.LineSegment(Vector(-18.1, 28, 0), Vector(-14.8, 24.7, 0)),  # 21
    Part.LineSegment(Vector(-14.8, 24.7, 0), Vector(-11.6, 28, 0)),  # 22
    Part.LineSegment(Vector(-11.6, 28, 0), Vector(11.6, 28, 0)),  # 23
    Part.LineSegment(Vector(11.6, 28, 0), Vector(14.8, 24.7, 0)),  # 24
    Part.LineSegment(Vector(14.8, 24.7, 0), Vector(18.1, 28, 0)),  # 25
    Part.LineSegment(Vector(18.1, 28, 0), Vector(23.9, 28, 0)),  # 26
    Part.LineSegment(Vector(23.9, 28, 0), Vector(28, 23.9, 0)),  # 27
    Part.LineSegment(Vector(28, 23.9, 0), Vector(28, 18.1, 0)),  # 28
    Part.LineSegment(Vector(28, 18.1, 0), Vector(24.7, 14.8, 0)),  # 29
    Part.LineSegment(Vector(24.7, 14.8, 0), Vector(28, 11.6, 0)),  # 30
    Part.LineSegment(Vector(28, 11.6, 0), Vector(28, -11.6, 0)),  # 31
    Part.Circle(Vector(21, -21, 0), Vector(0, 0, 1), 3.2),  # 32
    Part.Circle(Vector(-21, -21, 0), Vector(0, 0, 1), 3.2),  # 33
    Part.Circle(Vector(21, 21, 0), Vector(0, 0, 1), 3.2),  # 34
    Part.Circle(Vector(0, 0, 0), Vector(0, 0, 1), 4.2),  # 35
    Part.LineSegment(Vector(-20, -8.3, 0), Vector(-8.3, -20, 0)),  # 36
    Part.LineSegment(Vector(-8.3, -20, 0), Vector(8.3, -20, 0)),  # 37
    Part.LineSegment(Vector(8.3, -20, 0), Vector(20, -8.3, 0)),  # 38
    Part.LineSegment(Vector(20, -8.3, 0), Vector(20, 8.3, 0)),  # 39
    Part.LineSegment(Vector(20, 8.3, 0), Vector(8.3, 20, 0)),  # 40
    Part.LineSegment(Vector(8.3, 20, 0), Vector(-8.3, 20, 0)),  # 41
    Part.LineSegment(Vector(-8.3, 20, 0), Vector(-20, 8.3, 0)),  # 42
    Part.LineSegment(Vector(-20, 8.3, 0), Vector(-20, 5, 0)),  # 43
    Part.LineSegment(Vector(-20, 5, 0), Vector(-7.7, 5, 0)),  # 44
    Part.LineSegment(Vector(-7.7, 5, 0), Vector(-3.7, 9, 0)),  # 45
    Part.LineSegment(Vector(-3.7, 9, 0), Vector(3.7, 9, 0)),  # 46
    Part.LineSegment(Vector(3.7, 9, 0), Vector(9, 3.7, 0)),  # 47
    Part.LineSegment(Vector(9, 3.7, 0), Vector(9, -3.7, 0)),  # 48
    Part.LineSegment(Vector(9, -3.7, 0), Vector(3.7, -9, 0)),  # 49
    Part.LineSegment(Vector(3.7, -9, 0), Vector(-3.7, -9, 0)),  # 50
    Part.LineSegment(Vector(-3.7, -9, 0), Vector(-7.7, -5, 0)),  # 51
    Part.LineSegment(Vector(-7.7, -5, 0), Vector(-20, -5, 0)),  # 52
    Part.LineSegment(Vector(-20, -5, 0), Vector(-20, -8.3, 0)),  # 53
    Part.Circle(Vector(-21, 21, 0), Vector(0, 0, 1), 3.2),  # 54
], False)
sketch4.addConstraint([
    Sketcher.Constraint("Coincident", 0, 2, 1, 1),
    Sketcher.Constraint("Coincident", 1, 2, 2, 1),
    Sketcher.Constraint("Coincident", 2, 2, 3, 1),
    Sketcher.Constraint("Coincident", 3, 2, 4, 1),
    Sketcher.Constraint("Coincident", 4, 2, 5, 1),
    Sketcher.Constraint("Coincident", 5, 2, 6, 1),
    Sketcher.Constraint("Coincident", 6, 2, 7, 1),
    Sketcher.Constraint("Coincident", 7, 2, 8, 1),
    Sketcher.Constraint("Coincident", 8, 2, 9, 1),
    Sketcher.Constraint("Coincident", 9, 2, 10, 1),
    Sketcher.Constraint("Coincident", 10, 2, 11, 1),
    Sketcher.Constraint("Coincident", 11, 2, 12, 1),
    Sketcher.Constraint("Coincident", 12, 2, 13, 1),
    Sketcher.Constraint("Coincident", 13, 2, 14, 1),
    Sketcher.Constraint("Coincident", 14, 2, 15, 1),
    Sketcher.Constraint("Coincident", 15, 2, 16, 1),
    Sketcher.Constraint("Coincident", 16, 2, 17, 1),
    Sketcher.Constraint("Coincident", 17, 2, 18, 1),
    Sketcher.Constraint("Coincident", 18, 2, 19, 1),
    Sketcher.Constraint("Coincident", 19, 2, 20, 1),
    Sketcher.Constraint("Coincident", 20, 2, 21, 1),
    Sketcher.Constraint("Coincident", 21, 2, 22, 1),
    Sketcher.Constraint("Coincident", 22, 2, 23, 1),
    Sketcher.Constraint("Coincident", 23, 2, 24, 1),
    Sketcher.Constraint("Coincident", 24, 2, 25, 1),
    Sketcher.Constraint("Coincident", 25, 2, 26, 1),
    Sketcher.Constraint("Coincident", 26, 2, 27, 1),
    Sketcher.Constraint("Coincident", 27, 2, 28, 1),
    Sketcher.Constraint("Coincident", 28, 2, 29, 1),
    Sketcher.Constraint("Coincident", 29, 2, 30, 1),
    Sketcher.Constraint("Coincident", 30, 2, 31, 1),
    Sketcher.Constraint("Coincident", 31, 2, 0, 1),
    Sketcher.Constraint("Coincident", 36, 2, 37, 1),
    Sketcher.Constraint("Coincident", 37, 2, 38, 1),
    Sketcher.Constraint("Coincident", 38, 2, 39, 1),
    Sketcher.Constraint("Coincident", 39, 2, 40, 1),
    Sketcher.Constraint("Coincident", 40, 2, 41, 1),
    Sketcher.Constraint("Coincident", 41, 2, 42, 1),
    Sketcher.Constraint("Coincident", 42, 2, 43, 1),
    Sketcher.Constraint("Coincident", 43, 2, 44, 1),
    Sketcher.Constraint("Coincident", 44, 2, 45, 1),
    Sketcher.Constraint("Coincident", 45, 2, 46, 1),
    Sketcher.Constraint("Coincident", 46, 2, 47, 1),
    Sketcher.Constraint("Coincident", 47, 2, 48, 1),
    Sketcher.Constraint("Coincident", 48, 2, 49, 1),
    Sketcher.Constraint("Coincident", 49, 2, 50, 1),
    Sketcher.Constraint("Coincident", 50, 2, 51, 1),
    Sketcher.Constraint("Coincident", 51, 2, 52, 1),
    Sketcher.Constraint("Coincident", 52, 2, 53, 1),
    Sketcher.Constraint("Coincident", 53, 2, 36, 1),
    Sketcher.Constraint("Vertical", 2),
    Sketcher.Constraint("Horizontal", 4),
    Sketcher.Constraint("Horizontal", 7),
    Sketcher.Constraint("Horizontal", 10),
    Sketcher.Constraint("Vertical", 12),
    Sketcher.Constraint("Vertical", 15),
    Sketcher.Constraint("Vertical", 18),
    Sketcher.Constraint("Horizontal", 20),
    Sketcher.Constraint("Horizontal", 23),
    Sketcher.Constraint("Horizontal", 26),
    Sketcher.Constraint("Vertical", 28),
    Sketcher.Constraint("Vertical", 31),
    Sketcher.Constraint("Horizontal", 37),
    Sketcher.Constraint("Vertical", 39),
    Sketcher.Constraint("Horizontal", 41),
    Sketcher.Constraint("Vertical", 43),
    Sketcher.Constraint("Horizontal", 44),
    Sketcher.Constraint("Horizontal", 46),
    Sketcher.Constraint("Vertical", 48),
    Sketcher.Constraint("Horizontal", 50),
    Sketcher.Constraint("Horizontal", 52),
    Sketcher.Constraint("Vertical", 53),
    Sketcher.Constraint("Coincident", 35, 3, -1, 1),
    Sketcher.Constraint("Equal", 32, 33),
    Sketcher.Constraint("Equal", 33, 34),
    Sketcher.Constraint("Equal", 34, 54),
    Sketcher.Constraint("Symmetric", 33, 3, 34, 3, -1, 1),
    Sketcher.Constraint("Symmetric", 32, 3, 54, 3, -1, 1),
    Sketcher.Constraint("Symmetric", 0, 2, 16, 2, -1, 1),
    Sketcher.Constraint("Symmetric", 1, 2, 17, 2, -1, 1),
    Sketcher.Constraint("Symmetric", 3, 2, 19, 2, -1, 1),
    Sketcher.Constraint("Symmetric", 5, 2, 21, 2, -1, 1),
    Sketcher.Constraint("Symmetric", 6, 2, 22, 2, -1, 1),
    Sketcher.Constraint("Symmetric", 8, 2, 24, 2, -1, 1),
    Sketcher.Constraint("Symmetric", 9, 2, 25, 2, -1, 1),
    Sketcher.Constraint("Symmetric", 11, 2, 27, 2, -1, 1),
    Sketcher.Constraint("Symmetric", 13, 2, 29, 2, -1, 1),
    Sketcher.Constraint("Symmetric", 14, 2, 30, 2, -1, 1),
    Sketcher.Constraint("Symmetric", 36, 2, 40, 2, -1, 1),
    Sketcher.Constraint("Symmetric", 38, 2, 42, 2, -1, 1),
    Sketcher.Constraint("Symmetric", 45, 2, 49, 2, -1, 1),
    Sketcher.Constraint("Symmetric", 39, 2, 53, 2, -1, 1),
    Sketcher.Constraint("Symmetric", 32, 3, 33, 3, -2),
    Sketcher.Constraint("Symmetric", 5, 2, 8, 2, -2),
    Sketcher.Constraint("Symmetric", 4, 2, 9, 2, -2),
    Sketcher.Constraint("Symmetric", 2, 2, 11, 2, -2),
    Sketcher.Constraint("Symmetric", 0, 2, 13, 2, -2),
    Sketcher.Constraint("Symmetric", 44, 2, 51, 2, -1),
    Sketcher.Constraint("Perpendicular", 0, 1),
    Sketcher.Constraint("Perpendicular", 1, 3),
    Sketcher.Constraint("Perpendicular", 3, 5),
    Sketcher.Constraint("Perpendicular", 5, 6),
    Sketcher.Constraint("Perpendicular", 6, 8),
    Sketcher.Constraint("Perpendicular", 8, 9),
    Sketcher.Constraint("Perpendicular", 9, 11),
    Sketcher.Constraint("Perpendicular", 11, 13),
    Sketcher.Constraint("Perpendicular", 13, 14),
    Sketcher.Constraint("Perpendicular", 14, 16),
    Sketcher.Constraint("Perpendicular", 17, 19),
    Sketcher.Constraint("Perpendicular", 19, 21),
    Sketcher.Constraint("Perpendicular", 22, 24),
    Sketcher.Constraint("Perpendicular", 25, 27),
    Sketcher.Constraint("Perpendicular", 27, 29),
    Sketcher.Constraint("Parallel", 30, 36),
    Sketcher.Constraint("Perpendicular", 36, 38),
    Sketcher.Constraint("Perpendicular", 40, 42),
    Sketcher.Constraint("Parallel", 42, 45),
    Sketcher.Constraint("Perpendicular", 45, 47),
    Sketcher.Constraint("Perpendicular", 47, 49),
    Sketcher.Constraint("Perpendicular", 49, 51),
    Sketcher.Constraint("Horizontal", 4, 2, 6, 2),
    Sketcher.Constraint("Horizontal", 39, 2, 42, 2),
    Sketcher.Constraint("Vertical", 12, 2, 14, 2),
    Sketcher.Constraint("Vertical", 46, 2, 49, 2),
    Sketcher.Constraint("Equal", 26, 2),
    Sketcher.Constraint("Equal", 23, 15),
    Sketcher.Constraint("Equal", 41, 39),
    Sketcher.Constraint("Equal", 50, 48),
    Sketcher.Constraint("Equal", 1, 5),
    Sketcher.Constraint("Diameter", 32, 6.4),
    Sketcher.Constraint("Diameter", 35, 8.4),
    Sketcher.Constraint("DistanceX", -1, 1, 32, 3, 21.0),
    Sketcher.Constraint("DistanceY", 32, 3, -1, 1, 21.0),
    Sketcher.Constraint("DistanceX", -1, 1, 1, 2, 28.0),
    Sketcher.Constraint("DistanceY", 36, 2, -1, 1, 20.0),
    Sketcher.Constraint("DistanceY", -1, 1, 43, 2, 5.0),
    Sketcher.Constraint("DistanceY", -1, 1, 45, 2, 9.0),
    Sketcher.Constraint("DistanceX", 4, 2, 4, 1, 5.799),
    Sketcher.Constraint("DistanceX", 7, 2, 7, 1, 23.196),
    Sketcher.Constraint("DistanceX", 44, 1, 44, 2, 12.272),
    Sketcher.Constraint("Distance", 0, 4.598),
    Sketcher.Constraint("DistanceX", 37, 1, 37, 2, 16.5686),
])
pad3 = doc.addObject("PartDesign::Pad", "Pad002")
body.addObject(pad3)
pad3.Profile = sketch4
pad3.Length = 0.5
pad3.Reversed = True

doc.recompute()
